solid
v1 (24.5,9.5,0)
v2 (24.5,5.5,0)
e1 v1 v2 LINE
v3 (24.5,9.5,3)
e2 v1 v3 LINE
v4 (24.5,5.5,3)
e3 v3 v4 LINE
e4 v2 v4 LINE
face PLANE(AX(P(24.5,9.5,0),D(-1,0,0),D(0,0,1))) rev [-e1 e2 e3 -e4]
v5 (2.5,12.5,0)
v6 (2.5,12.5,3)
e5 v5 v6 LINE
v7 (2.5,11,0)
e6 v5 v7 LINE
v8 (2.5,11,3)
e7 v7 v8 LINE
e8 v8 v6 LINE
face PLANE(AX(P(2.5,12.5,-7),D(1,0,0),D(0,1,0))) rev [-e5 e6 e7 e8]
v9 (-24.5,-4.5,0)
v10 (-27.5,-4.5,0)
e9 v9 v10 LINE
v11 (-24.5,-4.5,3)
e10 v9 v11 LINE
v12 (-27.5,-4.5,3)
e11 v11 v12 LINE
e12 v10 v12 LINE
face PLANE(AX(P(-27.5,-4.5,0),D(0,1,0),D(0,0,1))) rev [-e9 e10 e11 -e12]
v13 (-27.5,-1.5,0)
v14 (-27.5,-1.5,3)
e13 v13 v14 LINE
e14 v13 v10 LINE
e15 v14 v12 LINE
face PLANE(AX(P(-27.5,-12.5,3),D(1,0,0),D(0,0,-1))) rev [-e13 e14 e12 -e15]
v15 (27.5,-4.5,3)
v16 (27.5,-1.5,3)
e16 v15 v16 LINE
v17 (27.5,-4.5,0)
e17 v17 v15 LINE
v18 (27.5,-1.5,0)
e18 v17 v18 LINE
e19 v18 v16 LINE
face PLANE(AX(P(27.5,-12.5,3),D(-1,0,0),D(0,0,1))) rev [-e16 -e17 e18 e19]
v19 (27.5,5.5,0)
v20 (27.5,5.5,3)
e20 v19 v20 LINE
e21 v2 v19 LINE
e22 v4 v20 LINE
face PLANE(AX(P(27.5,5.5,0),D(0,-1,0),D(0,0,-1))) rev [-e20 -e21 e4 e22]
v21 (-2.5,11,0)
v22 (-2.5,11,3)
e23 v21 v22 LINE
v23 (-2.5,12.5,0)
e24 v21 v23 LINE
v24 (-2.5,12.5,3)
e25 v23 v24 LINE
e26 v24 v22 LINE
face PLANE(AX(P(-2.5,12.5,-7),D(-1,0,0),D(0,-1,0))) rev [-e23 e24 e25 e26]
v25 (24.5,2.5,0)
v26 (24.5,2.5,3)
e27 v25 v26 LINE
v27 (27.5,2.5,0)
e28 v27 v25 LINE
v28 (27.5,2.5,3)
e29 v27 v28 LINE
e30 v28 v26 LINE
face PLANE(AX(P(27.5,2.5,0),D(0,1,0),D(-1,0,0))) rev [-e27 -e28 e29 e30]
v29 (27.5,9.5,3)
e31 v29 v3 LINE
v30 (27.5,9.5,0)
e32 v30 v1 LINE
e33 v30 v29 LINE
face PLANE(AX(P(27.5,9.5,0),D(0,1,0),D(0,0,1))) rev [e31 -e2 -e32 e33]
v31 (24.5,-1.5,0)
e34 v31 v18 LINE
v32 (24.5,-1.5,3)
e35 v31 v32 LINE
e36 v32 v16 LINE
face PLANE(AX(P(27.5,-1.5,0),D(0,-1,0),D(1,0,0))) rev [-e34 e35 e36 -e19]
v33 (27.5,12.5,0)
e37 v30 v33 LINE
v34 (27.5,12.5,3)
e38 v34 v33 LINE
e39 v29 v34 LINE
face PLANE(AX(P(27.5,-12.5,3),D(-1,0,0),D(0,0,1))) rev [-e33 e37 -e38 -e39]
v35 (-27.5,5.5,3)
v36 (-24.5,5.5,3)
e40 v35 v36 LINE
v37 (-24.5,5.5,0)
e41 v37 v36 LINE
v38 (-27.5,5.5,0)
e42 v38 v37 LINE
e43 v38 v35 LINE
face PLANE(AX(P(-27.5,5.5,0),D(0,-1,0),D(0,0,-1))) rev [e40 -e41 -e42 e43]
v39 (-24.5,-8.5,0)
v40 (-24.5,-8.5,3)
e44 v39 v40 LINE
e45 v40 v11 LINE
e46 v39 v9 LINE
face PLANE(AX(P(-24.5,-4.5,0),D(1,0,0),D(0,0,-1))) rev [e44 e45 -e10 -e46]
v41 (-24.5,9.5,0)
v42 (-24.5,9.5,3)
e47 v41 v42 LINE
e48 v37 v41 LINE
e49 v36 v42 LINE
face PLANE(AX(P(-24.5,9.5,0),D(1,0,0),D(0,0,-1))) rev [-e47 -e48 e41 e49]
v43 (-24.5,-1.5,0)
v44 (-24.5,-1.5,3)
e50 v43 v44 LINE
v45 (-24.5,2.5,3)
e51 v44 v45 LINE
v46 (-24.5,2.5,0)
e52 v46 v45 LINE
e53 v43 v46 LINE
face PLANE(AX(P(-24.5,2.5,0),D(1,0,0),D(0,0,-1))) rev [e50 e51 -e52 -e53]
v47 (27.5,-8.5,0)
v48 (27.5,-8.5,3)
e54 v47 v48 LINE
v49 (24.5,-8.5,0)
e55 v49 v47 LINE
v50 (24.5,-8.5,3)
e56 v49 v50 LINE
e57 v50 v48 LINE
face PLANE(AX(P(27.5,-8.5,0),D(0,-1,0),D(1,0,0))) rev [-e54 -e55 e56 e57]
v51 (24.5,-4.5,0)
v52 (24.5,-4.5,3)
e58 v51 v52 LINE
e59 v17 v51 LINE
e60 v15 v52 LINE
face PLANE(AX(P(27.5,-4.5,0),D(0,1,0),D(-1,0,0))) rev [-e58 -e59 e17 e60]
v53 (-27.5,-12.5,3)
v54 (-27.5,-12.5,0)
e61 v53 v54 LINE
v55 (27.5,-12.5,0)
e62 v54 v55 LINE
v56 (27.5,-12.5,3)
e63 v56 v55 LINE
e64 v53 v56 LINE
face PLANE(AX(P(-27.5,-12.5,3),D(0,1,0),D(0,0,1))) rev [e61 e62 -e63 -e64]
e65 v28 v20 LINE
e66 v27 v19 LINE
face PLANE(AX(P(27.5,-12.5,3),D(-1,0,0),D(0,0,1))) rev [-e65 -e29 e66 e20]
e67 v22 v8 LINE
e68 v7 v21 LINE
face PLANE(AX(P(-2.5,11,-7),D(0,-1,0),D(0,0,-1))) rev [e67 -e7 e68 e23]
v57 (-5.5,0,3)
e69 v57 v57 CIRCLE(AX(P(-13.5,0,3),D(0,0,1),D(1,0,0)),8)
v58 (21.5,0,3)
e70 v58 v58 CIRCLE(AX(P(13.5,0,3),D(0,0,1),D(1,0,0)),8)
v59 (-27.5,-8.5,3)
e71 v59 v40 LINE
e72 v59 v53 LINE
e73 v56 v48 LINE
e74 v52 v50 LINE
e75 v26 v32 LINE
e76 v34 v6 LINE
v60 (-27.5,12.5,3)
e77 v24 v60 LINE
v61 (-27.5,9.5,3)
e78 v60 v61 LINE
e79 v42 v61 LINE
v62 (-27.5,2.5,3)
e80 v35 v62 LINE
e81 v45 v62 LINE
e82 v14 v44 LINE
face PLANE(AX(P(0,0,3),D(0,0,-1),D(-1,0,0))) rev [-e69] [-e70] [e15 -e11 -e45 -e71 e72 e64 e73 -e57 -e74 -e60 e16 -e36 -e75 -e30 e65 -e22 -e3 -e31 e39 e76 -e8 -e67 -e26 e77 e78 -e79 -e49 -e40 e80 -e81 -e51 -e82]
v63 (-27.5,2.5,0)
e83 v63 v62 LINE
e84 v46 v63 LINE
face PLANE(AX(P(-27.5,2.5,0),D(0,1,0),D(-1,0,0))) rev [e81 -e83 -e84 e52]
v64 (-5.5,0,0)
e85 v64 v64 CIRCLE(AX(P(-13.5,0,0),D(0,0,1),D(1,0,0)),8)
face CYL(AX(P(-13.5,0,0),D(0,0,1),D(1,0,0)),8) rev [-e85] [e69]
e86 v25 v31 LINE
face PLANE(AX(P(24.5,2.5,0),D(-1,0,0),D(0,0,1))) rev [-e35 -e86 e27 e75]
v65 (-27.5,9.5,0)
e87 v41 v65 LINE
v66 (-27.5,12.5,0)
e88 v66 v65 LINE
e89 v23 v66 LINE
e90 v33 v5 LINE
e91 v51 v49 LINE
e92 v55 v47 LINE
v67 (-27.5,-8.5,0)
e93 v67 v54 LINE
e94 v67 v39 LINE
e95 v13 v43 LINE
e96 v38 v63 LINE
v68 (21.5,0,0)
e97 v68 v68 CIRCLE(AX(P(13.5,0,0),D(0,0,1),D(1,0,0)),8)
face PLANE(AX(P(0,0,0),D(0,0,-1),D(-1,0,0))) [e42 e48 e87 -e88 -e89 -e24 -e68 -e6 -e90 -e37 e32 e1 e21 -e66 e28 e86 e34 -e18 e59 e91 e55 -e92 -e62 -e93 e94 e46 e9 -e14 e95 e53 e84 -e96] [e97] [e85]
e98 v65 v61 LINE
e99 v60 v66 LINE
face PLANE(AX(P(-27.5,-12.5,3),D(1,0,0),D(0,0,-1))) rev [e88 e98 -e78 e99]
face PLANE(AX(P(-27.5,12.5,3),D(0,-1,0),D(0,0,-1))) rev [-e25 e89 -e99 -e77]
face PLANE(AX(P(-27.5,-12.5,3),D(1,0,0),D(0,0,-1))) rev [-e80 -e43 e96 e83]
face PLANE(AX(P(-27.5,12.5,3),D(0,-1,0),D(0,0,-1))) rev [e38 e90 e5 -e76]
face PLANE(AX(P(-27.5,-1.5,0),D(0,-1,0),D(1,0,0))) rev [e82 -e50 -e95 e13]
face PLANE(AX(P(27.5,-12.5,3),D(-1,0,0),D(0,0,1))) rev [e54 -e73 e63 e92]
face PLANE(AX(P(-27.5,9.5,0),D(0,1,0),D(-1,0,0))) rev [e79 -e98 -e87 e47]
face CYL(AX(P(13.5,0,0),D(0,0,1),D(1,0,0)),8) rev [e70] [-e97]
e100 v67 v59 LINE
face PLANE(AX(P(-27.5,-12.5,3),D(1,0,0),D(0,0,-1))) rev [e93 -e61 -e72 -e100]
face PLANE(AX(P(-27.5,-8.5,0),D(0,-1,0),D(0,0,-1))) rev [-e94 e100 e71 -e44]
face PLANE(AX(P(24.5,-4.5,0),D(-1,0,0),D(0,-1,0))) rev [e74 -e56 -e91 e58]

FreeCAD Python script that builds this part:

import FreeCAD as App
import Part
import Sketcher

V = App.Vector
Q = App.Units.Quantity


def add_polygon(sketch, points):
    """Adds a closed chain of lines whose ends are joined by coincident constraints."""
    first, n = sketch.GeometryCount, len(points)
    for a, b in zip(points, points[1:] + points[:1]):
        sketch.addGeometry(Part.LineSegment(App.Vector(*a, 0), App.Vector(*b, 0)), False)
    for i in range(n):
        sketch.addConstraint(Sketcher.Constraint("Coincident", first + i, 2, first + (i + 1) % n, 1))

doc = App.newDocument("Part")
body = doc.addObject("PartDesign::Body", "Body")

# Sketch on XY plane
sketch1 = body.newObject("Sketcher::SketchObject", "Sketch")
sketch1.AttachmentSupport = (doc.getObject("XY_Plane"), [""])
sketch1.MapMode = "FlatFace"
add_polygon(sketch1, [(-28, 12), (-28, -12), (28, -12), (28, 12)])  # lines 0-3
sketch1.addConstraint([
    Sketcher.Constraint("Vertical", 0),
    Sketcher.Constraint("Horizontal", 1),
    Sketcher.Constraint("Vertical", 2),
    Sketcher.Constraint("Horizontal", 3),
    Sketcher.Constraint("Symmetric", 0, 2, 2, 2, -1, 1),
    Sketcher.Constraint("DistanceX", 1, 1, 1, 2, Q("55 mm")),
    Sketcher.Constraint("DistanceY", 0, 2, 0, 1, Q("25 mm")),
])
pad1 = body.newObject("PartDesign::Pad", "Pad")
pad1.Profile = sketch1
pad1.Length = 3

# Sketch on XY plane
sketch2 = body.newObject("Sketcher::SketchObject", "Sketch001")
sketch2.AttachmentSupport = (doc.getObject("XY_Plane"), [""])
sketch2.MapMode = "FlatFace"
sketch2.AttachmentOffset = App.Placement(V(0, 0, 3), App.Rotation())
sketch2.addGeometry([
    Part.Circle(V(-14, 0, 0), V(0, 0, 1), 8),
    Part.Circle(V(14, 0, 0), V(0, 0, 1), 8),
], False)
sketch2.addConstraint([
    Sketcher.Constraint("Equal", 0, 1),
    Sketcher.Constraint("Symmetric", 0, 3, 1, 3, -1, 1),
    Sketcher.Constraint("PointOnObject", 0, 3, -1),
    Sketcher.Constraint("Diameter", 0, Q("16 mm")),
    Sketcher.Constraint("DistanceX", 0, 3, 1, 3, Q("27 mm")),
])
pocket1 = body.newObject("PartDesign::Pocket", "Pocket")
pocket1.Profile = sketch2
pocket1.Length = 3

# Sketch on XY plane
sketch3 = body.newObject("Sketcher::SketchObject", "Sketch002")
sketch3.AttachmentSupport = (doc.getObject("XY_Plane"), [""])
sketch3.MapMode = "FlatFace"
sketch3.AttachmentOffset = App.Placement(V(0, 0, 3), App.Rotation())
add_polygon(sketch3, [(-27.5, 9.5), (-27.5, 5.5), (-24.5, 5.5), (-24.5, 9.5)])  # lines 0-3
add_polygon(sketch3, [(-27.5, 2.5), (-27.5, -1.5), (-24.5, -1.5), (-24.5, 2.5)])  # lines 4-7
add_polygon(sketch3, [(-27.5, -4.5), (-27.5, -8.5), (-24.5, -8.5), (-24.5, -4.5)])  # lines 8-11
sketch3.addConstraint([
    Sketcher.Constraint("Vertical", 0),
    Sketcher.Constraint("Horizontal", 1),
    Sketcher.Constraint("Vertical", 2),
    Sketcher.Constraint("Horizontal", 3),
    Sketcher.Constraint("Vertical", 4),
    Sketcher.Constraint("Horizontal", 5),
    Sketcher.Constraint("Vertical", 6),
    Sketcher.Constraint("Horizontal", 7),
    Sketcher.Constraint("Vertical", 8),
    Sketcher.Constraint("Horizontal", 9),
    Sketcher.Constraint("Vertical", 10),
    Sketcher.Constraint("Horizontal", 11),
    Sketcher.Constraint("Vertical", 3, 2, 4, 2),
    Sketcher.Constraint("Vertical", 2, 2, 5, 2),
    Sketcher.Constraint("Vertical", 7, 2, 8, 2),
    Sketcher.Constraint("Vertical", 6, 2, 9, 2),
    Sketcher.Constraint("Equal", 2, 4),
    Sketcher.Constraint("Equal", 6, 8),
    Sketcher.Constraint("DistanceX", 1, 1, 1, 2, Q("3 mm")),
    Sketcher.Constraint("DistanceY", 0, 2, 0, 1, Q("4 mm")),
    Sketcher.Constraint("DistanceY", 4, 2, 0, 2, Q("7 mm")),
    Sketcher.Constraint("DistanceY", 8, 2, 4, 2, Q("7 mm")),
    Sketcher.Constraint("DistanceX", 0, 2, -1, 1, Q("27.5 mm")),
    Sketcher.Constraint("DistanceY", -1, 1, 0, 2, Q("5.5 mm")),
])
pocket2 = body.newObject("PartDesign::Pocket", "Pocket001")
pocket2.Profile = sketch3
pocket2.Length = 3

# Sketch on XY plane
sketch4 = body.newObject("Sketcher::SketchObject", "Sketch003")
sketch4.AttachmentSupport = (doc.getObject("XY_Plane"), [""])
sketch4.MapMode = "FlatFace"
sketch4.AttachmentOffset = App.Placement(V(0, 0, 3), App.Rotation())
add_polygon(sketch4, [(24.5, 9.5), (24.5, 5.5), (27.5, 5.5), (27.5, 9.5)])  # lines 0-3
add_polygon(sketch4, [(24.5, 2.5), (24.5, -1.5), (27.5, -1.5), (27.5, 2.5)])  # lines 4-7
add_polygon(sketch4, [(24.5, -4.5), (24.5, -8.5), (27.5, -8.5), (27.5, -4.5)])  # lines 8-11
sketch4.addConstraint([
    Sketcher.Constraint("Vertical", 0),
    Sketcher.Constraint("Horizontal", 1),
    Sketcher.Constraint("Vertical", 2),
    Sketcher.Constraint("Horizontal", 3),
    Sketcher.Constraint("Vertical", 4),
    Sketcher.Constraint("Horizontal", 5),
    Sketcher.Constraint("Vertical", 6),
    Sketcher.Constraint("Horizontal", 7),
    Sketcher.Constraint("Vertical", 8),
    Sketcher.Constraint("Horizontal", 9),
    Sketcher.Constraint("Vertical", 10),
    Sketcher.Constraint("Horizontal", 11),
    Sketcher.Constraint("Vertical", 3, 2, 4, 2),
    Sketcher.Constraint("Vertical", 2, 2, 5, 2),
    Sketcher.Constraint("Vertical", 7, 2, 8, 2),
    Sketcher.Constraint("Vertical", 6, 2, 9, 2),
    Sketcher.Constraint("Equal", 2, 4),
    Sketcher.Constraint("Equal", 6, 8),
    Sketcher.Constraint("DistanceX", 1, 1, 1, 2, Q("3 mm")),
    Sketcher.Constraint("DistanceY", 0, 2, 0, 1, Q("4 mm")),
    Sketcher.Constraint("DistanceY", 4, 2, 0, 2, Q("7 mm")),
    Sketcher.Constraint("DistanceY", 8, 2, 4, 2, Q("7 mm")),
    Sketcher.Constraint("DistanceX", -1, 1, 0, 2, Q("24.5 mm")),
    Sketcher.Constraint("DistanceY", -1, 1, 0, 2, Q("5.5 mm")),
])
pocket3 = body.newObject("PartDesign::Pocket", "Pocket002")
pocket3.Profile = sketch4
pocket3.Length = 3

# Sketch on XY plane
sketch5 = body.newObject("Sketcher::SketchObject", "Sketch004")
sketch5.AttachmentSupport = (doc.getObject("XY_Plane"), [""])
sketch5.MapMode = "FlatFace"
sketch5.AttachmentOffset = App.Placement(V(0, 0, 3), App.Rotation())
add_polygon(sketch5, [(-2.5, 12.5), (-2.5, 11), (2.5, 11), (2.5, 12.5)])  # lines 0-3
sketch5.addConstraint([
    Sketcher.Constraint("Vertical", 0),
    Sketcher.Constraint("Horizontal", 1),
    Sketcher.Constraint("Vertical", 2),
    Sketcher.Constraint("Horizontal", 3),
    Sketcher.Constraint("DistanceX", 1, 1, 1, 2, Q("5 mm")),
    Sketcher.Constraint("DistanceY", 0, 2, 0, 1, Q("1.5 mm")),
    Sketcher.Constraint("DistanceY", -1, 1, 0, 2, Q("11 mm")),
    Sketcher.Constraint("DistanceX", 0, 2, -1, 1, Q("2.5 mm")),
])
pocket4 = body.newObject("PartDesign::Pocket", "Pocket003")
pocket4.Profile = sketch5
pocket4.Length = 10

doc.recompute()
